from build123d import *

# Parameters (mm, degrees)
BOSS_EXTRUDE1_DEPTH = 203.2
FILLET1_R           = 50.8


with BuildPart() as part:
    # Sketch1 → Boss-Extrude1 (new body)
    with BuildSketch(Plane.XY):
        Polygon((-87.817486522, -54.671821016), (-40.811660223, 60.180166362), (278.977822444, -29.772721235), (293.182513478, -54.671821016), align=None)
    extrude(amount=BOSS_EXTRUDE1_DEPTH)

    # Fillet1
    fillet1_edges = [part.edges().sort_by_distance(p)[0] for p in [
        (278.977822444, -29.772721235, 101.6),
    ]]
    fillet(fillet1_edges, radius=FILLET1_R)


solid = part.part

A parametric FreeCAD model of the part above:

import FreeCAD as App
import Part
import Sketcher
Q = App.Units.Quantity


def edges_at(feature, points):
    """Names of the edges that pass closest to the given points."""
    edges = feature.Shape.Edges
    near = lambda p: min(range(len(edges)), key=lambda i: edges[i].distToShape(Part.Vertex(*p))[0])
    return sorted({f"Edge{near(p) + 1}" for p in points})


def add_polygon(sketch, points):
    """Adds a closed chain of lines whose ends are joined by coincident constraints."""
    first, n = sketch.GeometryCount, len(points)
    for a, b in zip(points, points[1:] + points[:1]):
        sketch.addGeometry(Part.LineSegment(App.Vector(*a, 0), App.Vector(*b, 0)), False)
    for i in range(n):
        sketch.addConstraint(Sketcher.Constraint("Coincident", first + i, 2, first + (i + 1) % n, 1))

doc = App.newDocument("Part")
params = doc.addObject("Spreadsheet::Sheet", "Params")
for row, (alias, value) in enumerate([
    ("sketch1_width", "15 in"),
    ("pad1_length", "8 in"),
    ("fillet_radius", "2 in"),
], start=1):
    params.set(f"A{row}", alias)
    params.set(f"B{row}", "=" + value)
    params.setAlias(f"B{row}", alias)

body = doc.addObject("PartDesign::Body", "Body")

# Sketch on XY plane
sketch1 = body.newObject("Sketcher::SketchObject", "Sketch")
sketch1.AttachmentSupport = (doc.getObject("XY_Plane"), [""])
sketch1.MapMode = "FlatFace"
add_polygon(sketch1, [(-40.81166, 60.180166), (-87.817487, -54.671821), (293.182513, -54.671821), (278.977822, -29.772721)])  # lines 0-3
sketch1.addConstraint(Sketcher.Constraint("Horizontal", 1))
sketch1.addConstraint(Sketcher.Constraint("DistanceX", 1, 1, 1, 2, Q("15 in")))
sketch1.addConstraint(Sketcher.Constraint("DistanceY", 1, 2, 2, 2, 24.8991))
sketch1.addConstraint(Sketcher.Constraint("Distance", 0, 124.098859))
sketch1.addConstraint(Sketcher.Constraint("Distance", 2, 28.66598))
sketch1.addConstraint(Sketcher.Constraint("DistanceY", 0, 2, -1, 1, 54.671821))
sketch1.addConstraint(Sketcher.Constraint("DistanceX", 3, 2, -1, 1, 40.81166))
sketch1.addConstraint(Sketcher.Constraint("Distance", 3, 332.199993))
sketch1.setExpression("Constraints[5]", "Params.sketch1_width")
pad1 = body.newObject("PartDesign::Pad", "Pad")
pad1.Profile = sketch1
pad1.setExpression("Length", "Params.pad1_length")
doc.recompute()

fillet = body.newObject("PartDesign::Fillet", "Fillet")
fillet.Base = (pad1, edges_at(pad1, [(278.978, -29.773, 101.6)]))
fillet.setExpression("Radius", "Params.fillet_radius")

doc.recompute()
